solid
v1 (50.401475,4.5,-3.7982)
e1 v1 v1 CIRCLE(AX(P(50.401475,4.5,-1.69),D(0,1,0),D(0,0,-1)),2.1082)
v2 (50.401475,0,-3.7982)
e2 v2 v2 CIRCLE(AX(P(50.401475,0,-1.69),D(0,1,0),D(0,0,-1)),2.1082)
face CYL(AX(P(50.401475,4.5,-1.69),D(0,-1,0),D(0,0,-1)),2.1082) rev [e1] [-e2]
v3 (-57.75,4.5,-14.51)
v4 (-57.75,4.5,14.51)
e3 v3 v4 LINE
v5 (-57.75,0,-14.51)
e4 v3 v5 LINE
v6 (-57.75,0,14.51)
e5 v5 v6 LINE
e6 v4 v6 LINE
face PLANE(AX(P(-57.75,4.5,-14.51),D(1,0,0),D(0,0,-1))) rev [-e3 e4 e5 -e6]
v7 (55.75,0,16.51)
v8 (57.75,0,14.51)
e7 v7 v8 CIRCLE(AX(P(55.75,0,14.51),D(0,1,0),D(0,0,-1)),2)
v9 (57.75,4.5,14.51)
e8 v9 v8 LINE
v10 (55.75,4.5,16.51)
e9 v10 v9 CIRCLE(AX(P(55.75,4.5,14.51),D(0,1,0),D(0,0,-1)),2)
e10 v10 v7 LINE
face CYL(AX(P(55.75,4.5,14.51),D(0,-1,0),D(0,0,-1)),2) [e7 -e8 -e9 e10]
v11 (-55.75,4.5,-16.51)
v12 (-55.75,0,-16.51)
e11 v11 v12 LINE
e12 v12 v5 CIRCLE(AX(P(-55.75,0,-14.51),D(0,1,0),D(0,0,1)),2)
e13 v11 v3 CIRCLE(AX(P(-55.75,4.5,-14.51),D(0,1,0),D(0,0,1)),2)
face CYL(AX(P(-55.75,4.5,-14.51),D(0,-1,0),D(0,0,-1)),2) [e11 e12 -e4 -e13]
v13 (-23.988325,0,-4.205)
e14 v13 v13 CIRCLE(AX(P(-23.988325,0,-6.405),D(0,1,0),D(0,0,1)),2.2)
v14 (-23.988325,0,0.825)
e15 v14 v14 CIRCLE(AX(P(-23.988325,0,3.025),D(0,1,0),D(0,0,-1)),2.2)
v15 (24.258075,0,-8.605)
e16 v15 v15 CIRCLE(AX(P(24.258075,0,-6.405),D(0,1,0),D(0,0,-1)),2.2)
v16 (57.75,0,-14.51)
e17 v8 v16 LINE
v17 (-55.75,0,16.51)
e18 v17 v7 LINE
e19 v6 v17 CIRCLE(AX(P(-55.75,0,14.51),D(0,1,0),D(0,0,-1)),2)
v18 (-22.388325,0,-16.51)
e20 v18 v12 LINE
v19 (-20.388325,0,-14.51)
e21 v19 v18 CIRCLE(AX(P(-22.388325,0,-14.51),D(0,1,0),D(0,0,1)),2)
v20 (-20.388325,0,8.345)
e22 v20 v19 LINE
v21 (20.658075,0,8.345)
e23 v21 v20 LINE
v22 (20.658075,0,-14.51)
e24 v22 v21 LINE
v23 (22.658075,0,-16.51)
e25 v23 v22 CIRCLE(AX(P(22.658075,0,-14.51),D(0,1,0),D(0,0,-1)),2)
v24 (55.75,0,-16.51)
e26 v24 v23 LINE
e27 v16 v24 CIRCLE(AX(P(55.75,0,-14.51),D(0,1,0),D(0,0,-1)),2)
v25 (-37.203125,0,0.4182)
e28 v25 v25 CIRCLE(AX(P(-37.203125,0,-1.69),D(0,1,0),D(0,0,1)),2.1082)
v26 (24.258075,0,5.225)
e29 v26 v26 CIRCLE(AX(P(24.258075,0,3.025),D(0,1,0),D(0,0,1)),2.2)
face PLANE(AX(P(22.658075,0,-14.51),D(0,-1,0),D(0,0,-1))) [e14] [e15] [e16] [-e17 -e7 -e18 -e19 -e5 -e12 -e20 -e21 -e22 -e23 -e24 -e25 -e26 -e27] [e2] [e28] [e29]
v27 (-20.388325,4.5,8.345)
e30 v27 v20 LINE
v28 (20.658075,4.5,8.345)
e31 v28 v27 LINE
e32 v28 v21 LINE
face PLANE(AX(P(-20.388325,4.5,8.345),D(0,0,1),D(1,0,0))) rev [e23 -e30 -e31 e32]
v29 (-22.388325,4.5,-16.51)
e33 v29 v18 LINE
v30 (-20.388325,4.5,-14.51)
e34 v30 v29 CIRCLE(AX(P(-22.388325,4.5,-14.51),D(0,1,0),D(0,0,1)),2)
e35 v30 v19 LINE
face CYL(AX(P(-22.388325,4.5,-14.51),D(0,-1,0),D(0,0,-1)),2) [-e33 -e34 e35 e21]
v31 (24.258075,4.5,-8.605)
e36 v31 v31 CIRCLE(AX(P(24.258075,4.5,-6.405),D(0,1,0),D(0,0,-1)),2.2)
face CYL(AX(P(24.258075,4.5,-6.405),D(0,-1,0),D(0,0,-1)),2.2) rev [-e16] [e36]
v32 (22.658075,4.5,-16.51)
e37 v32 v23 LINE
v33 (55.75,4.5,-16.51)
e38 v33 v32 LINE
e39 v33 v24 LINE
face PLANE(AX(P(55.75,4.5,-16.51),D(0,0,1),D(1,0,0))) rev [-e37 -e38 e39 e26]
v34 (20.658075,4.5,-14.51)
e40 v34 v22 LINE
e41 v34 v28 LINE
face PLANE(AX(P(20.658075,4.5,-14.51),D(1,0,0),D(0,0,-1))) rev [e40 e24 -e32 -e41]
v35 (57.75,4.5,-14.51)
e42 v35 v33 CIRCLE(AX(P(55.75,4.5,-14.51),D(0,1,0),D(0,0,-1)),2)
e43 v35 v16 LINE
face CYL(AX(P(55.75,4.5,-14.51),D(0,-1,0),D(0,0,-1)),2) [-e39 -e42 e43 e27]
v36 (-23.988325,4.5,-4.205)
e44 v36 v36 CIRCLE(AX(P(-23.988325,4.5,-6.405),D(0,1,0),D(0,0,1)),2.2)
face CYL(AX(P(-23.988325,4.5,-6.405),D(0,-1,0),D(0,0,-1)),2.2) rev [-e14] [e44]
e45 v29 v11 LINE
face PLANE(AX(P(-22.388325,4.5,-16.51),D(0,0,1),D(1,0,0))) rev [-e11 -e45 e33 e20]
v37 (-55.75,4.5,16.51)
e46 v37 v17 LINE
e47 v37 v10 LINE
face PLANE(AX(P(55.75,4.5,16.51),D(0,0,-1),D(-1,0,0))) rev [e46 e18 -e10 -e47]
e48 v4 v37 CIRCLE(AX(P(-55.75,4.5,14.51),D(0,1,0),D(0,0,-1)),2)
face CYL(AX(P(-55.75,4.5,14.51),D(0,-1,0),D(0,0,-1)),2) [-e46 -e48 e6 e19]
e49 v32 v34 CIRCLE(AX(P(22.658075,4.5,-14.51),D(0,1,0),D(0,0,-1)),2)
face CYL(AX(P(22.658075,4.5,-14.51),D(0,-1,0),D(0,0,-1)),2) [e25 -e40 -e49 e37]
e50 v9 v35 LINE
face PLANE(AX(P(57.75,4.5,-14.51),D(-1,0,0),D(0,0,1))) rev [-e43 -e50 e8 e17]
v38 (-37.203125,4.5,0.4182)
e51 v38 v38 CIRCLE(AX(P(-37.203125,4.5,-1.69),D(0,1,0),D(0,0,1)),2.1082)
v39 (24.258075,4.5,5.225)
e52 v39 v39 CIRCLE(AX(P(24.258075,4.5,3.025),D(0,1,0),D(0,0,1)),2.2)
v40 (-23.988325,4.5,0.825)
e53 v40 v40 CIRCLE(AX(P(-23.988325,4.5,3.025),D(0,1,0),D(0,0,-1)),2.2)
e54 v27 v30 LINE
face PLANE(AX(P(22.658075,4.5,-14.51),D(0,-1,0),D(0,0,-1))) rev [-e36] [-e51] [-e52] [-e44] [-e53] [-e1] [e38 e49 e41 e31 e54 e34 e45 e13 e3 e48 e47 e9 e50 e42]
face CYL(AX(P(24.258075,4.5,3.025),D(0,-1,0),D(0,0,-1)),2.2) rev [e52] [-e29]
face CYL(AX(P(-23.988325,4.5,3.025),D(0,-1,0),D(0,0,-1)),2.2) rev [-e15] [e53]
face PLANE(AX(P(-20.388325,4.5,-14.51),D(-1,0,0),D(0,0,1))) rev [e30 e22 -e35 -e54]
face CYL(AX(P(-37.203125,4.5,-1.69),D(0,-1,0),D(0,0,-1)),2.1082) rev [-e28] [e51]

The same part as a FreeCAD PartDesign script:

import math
import FreeCAD as App
import Part
import Sketcher
from FreeCAD import Vector
Q = App.Units.Quantity

doc = App.newDocument("Part")
params = doc.addObject("Spreadsheet::Sheet", "Params")
for row, (alias, value) in enumerate([
    ("sketch1_radius", "2 mm"),
    ("sketch1_diameter", "4.4 mm"),
    ("sketch1_width", "111.5 mm"),
    ("sketch1_height", "29.02 mm"),
    ("pad1_length", "4.5 mm"),
], start=1):
    params.set(f"A{row}", alias)
    params.set(f"B{row}", "=" + value)
    params.setAlias(f"B{row}", alias)

body = doc.addObject("PartDesign::Body", "Body")

# Sketch on XZ plane
sketch1 = body.newObject("Sketcher::SketchObject", "Sketch")
sketch1.AttachmentSupport = (doc.getObject("XZ_Plane"), [""])
sketch1.MapMode = "FlatFace"
sketch1.addGeometry([
    Part.LineSegment(Vector(55.8, -16.5, 0), Vector(22.7, -16.5, 0)),  # 0
    Part.ArcOfCircle(Part.Circle(Vector(22.7, -14.5, 0), Vector(0, 0, 1), 2), math.radians(-180), math.radians(-90)),  # 1
    Part.LineSegment(Vector(20.7, -14.5, 0), Vector(20.7, 8.3, 0)),  # 2
    Part.LineSegment(Vector(20.7, 8.3, 0), Vector(-20.4, 8.3, 0)),  # 3
    Part.LineSegment(Vector(-20.4, 8.3, 0), Vector(-20.4, -14.5, 0)),  # 4
    Part.ArcOfCircle(Part.Circle(Vector(-22.4, -14.5, 0), Vector(0, 0, 1), 2), math.radians(-90), math.radians(0)),  # 5
    Part.LineSegment(Vector(-22.4, -16.5, 0), Vector(-55.8, -16.5, 0)),  # 6
    Part.ArcOfCircle(Part.Circle(Vector(-55.7, -14.5, 0), Vector(0, 0, 1), 2), math.radians(-180), math.radians(-90)),  # 7
    Part.LineSegment(Vector(-57.8, -14.5, 0), Vector(-57.8, 14.5, 0)),  # 8
    Part.ArcOfCircle(Part.Circle(Vector(-55.7, 14.5, 0), Vector(0, 0, 1), 2), math.radians(90), math.radians(180)),  # 9
    Part.LineSegment(Vector(-55.8, 16.5, 0), Vector(55.8, 16.5, 0)),  # 10
    Part.ArcOfCircle(Part.Circle(Vector(55.7, 14.5, 0), Vector(0, 0, 1), 2), math.radians(0), math.radians(90)),  # 11
    Part.LineSegment(Vector(57.8, 14.5, 0), Vector(57.8, -14.5, 0)),  # 12
    Part.ArcOfCircle(Part.Circle(Vector(55.7, -14.5, 0), Vector(0, 0, 1), 2), math.radians(-90), math.radians(0)),  # 13
    Part.Circle(Vector(-24, 3, 0), Vector(0, 0, 1), 2.2),  # 14
    Part.Circle(Vector(24.3, 3, 0), Vector(0, 0, 1), 2.2),  # 15
    Part.Circle(Vector(-37.2, -1.7, 0), Vector(0, 0, 1), 2.1),  # 16
    Part.Circle(Vector(-24, -6.4, 0), Vector(0, 0, 1), 2.2),  # 17
    Part.Circle(Vector(50.4, -1.7, 0), Vector(0, 0, 1), 2.1),  # 18
    Part.Circle(Vector(24.3, -6.4, 0), Vector(0, 0, 1), 2.2),  # 19
], False)
sketch1.addConstraint([
    Sketcher.Constraint("Tangent", 0, 2, 1, 2),
    Sketcher.Constraint("Tangent", 1, 1, 2, 1),
    Sketcher.Constraint("Coincident", 2, 2, 3, 1),
    Sketcher.Constraint("Coincident", 3, 2, 4, 1),
    Sketcher.Constraint("Tangent", 4, 2, 5, 2),
    Sketcher.Constraint("Tangent", 5, 1, 6, 1),
    Sketcher.Constraint("Tangent", 6, 2, 7, 2),
    Sketcher.Constraint("Tangent", 7, 1, 8, 1),
    Sketcher.Constraint("Tangent", 8, 2, 9, 2),
    Sketcher.Constraint("Tangent", 9, 1, 10, 1),
    Sketcher.Constraint("Tangent", 10, 2, 11, 2),
    Sketcher.Constraint("Tangent", 11, 1, 12, 1),
    Sketcher.Constraint("Tangent", 12, 2, 13, 2),
    Sketcher.Constraint("Tangent", 13, 1, 0, 1),
    Sketcher.Constraint("Horizontal", 0),
    Sketcher.Constraint("Vertical", 2),
    Sketcher.Constraint("Horizontal", 3),
    Sketcher.Constraint("Vertical", 4),
    Sketcher.Constraint("Horizontal", 6),
    Sketcher.Constraint("Vertical", 8),
    Sketcher.Constraint("Horizontal", 10),
    Sketcher.Constraint("Vertical", 12),
    Sketcher.Constraint("Equal", 1, 5),
    Sketcher.Constraint("Equal", 5, 7),
    Sketcher.Constraint("Equal", 7, 9),
    Sketcher.Constraint("Equal", 9, 11),
    Sketcher.Constraint("Equal", 11, 13),
    Sketcher.Constraint("Equal", 14, 15),
    Sketcher.Constraint("Equal", 15, 17),
    Sketcher.Constraint("Equal", 16, 18),
    Sketcher.Constraint("Equal", 17, 19),
    Sketcher.Constraint("Symmetric", 7, 3, 11, 3, -1, 1),
    Sketcher.Constraint("Horizontal", 1, 3, 5, 3),
    Sketcher.Constraint("Horizontal", 14, 3, 15, 3),
    Sketcher.Constraint("Horizontal", 16, 3, 18, 3),
    Sketcher.Constraint("Horizontal", 17, 3, 19, 3),
    Sketcher.Constraint("Vertical", 14, 3, 17, 3),
    Sketcher.Constraint("Vertical", 15, 3, 19, 3),
    Sketcher.Constraint("Radius", 1, Q("2 mm")),
    Sketcher.Constraint("Diameter", 14, Q("4.4 mm")),
    Sketcher.Constraint("DistanceX", 10, 1, 10, 2, Q("111.5 mm")),
    Sketcher.Constraint("Diameter", 16, Q("4.2164 mm")),
    Sketcher.Constraint("DistanceY", 8, 1, 8, 2, Q("29.02 mm")),
    Sketcher.Constraint("DistanceX", 14, 3, 5, 3, Q("1.6 mm")),
    Sketcher.Constraint("DistanceX", 1, 3, 15, 3, Q("1.6 mm")),
    Sketcher.Constraint("DistanceY", 16, 3, 9, 3, Q("16.2 mm")),
    Sketcher.Constraint("DistanceY", 2, 1, 2, 2, Q("22.855 mm")),
    Sketcher.Constraint("DistanceY", 17, 3, 14, 3, Q("9.43 mm")),
    Sketcher.Constraint("DistanceY", 15, 3, 2, 2, Q("5.32 mm")),
    Sketcher.Constraint("DistanceX", 3, 2, 3, 1, Q("41.0464 mm")),
    Sketcher.Constraint("DistanceX", 16, 3, 14, 3, Q("13.2148 mm")),
    Sketcher.Constraint("DistanceX", 15, 3, 18, 3, Q("26.1434 mm")),
    Sketcher.Constraint("DistanceX", 0, 2, 0, 1, Q("33.091925 mm")),
])
sketch1.setExpression("Constraints[38]", "Params.sketch1_radius")
sketch1.setExpression("Constraints[39]", "Params.sketch1_diameter")
sketch1.setExpression("Constraints[40]", "Params.sketch1_width")
sketch1.setExpression("Constraints[42]", "Params.sketch1_height")
pad1 = body.newObject("PartDesign::Pad", "Pad")
pad1.Profile = sketch1
pad1.setExpression("Length", "Params.pad1_length")
pad1.Reversed = True

doc.recompute()
